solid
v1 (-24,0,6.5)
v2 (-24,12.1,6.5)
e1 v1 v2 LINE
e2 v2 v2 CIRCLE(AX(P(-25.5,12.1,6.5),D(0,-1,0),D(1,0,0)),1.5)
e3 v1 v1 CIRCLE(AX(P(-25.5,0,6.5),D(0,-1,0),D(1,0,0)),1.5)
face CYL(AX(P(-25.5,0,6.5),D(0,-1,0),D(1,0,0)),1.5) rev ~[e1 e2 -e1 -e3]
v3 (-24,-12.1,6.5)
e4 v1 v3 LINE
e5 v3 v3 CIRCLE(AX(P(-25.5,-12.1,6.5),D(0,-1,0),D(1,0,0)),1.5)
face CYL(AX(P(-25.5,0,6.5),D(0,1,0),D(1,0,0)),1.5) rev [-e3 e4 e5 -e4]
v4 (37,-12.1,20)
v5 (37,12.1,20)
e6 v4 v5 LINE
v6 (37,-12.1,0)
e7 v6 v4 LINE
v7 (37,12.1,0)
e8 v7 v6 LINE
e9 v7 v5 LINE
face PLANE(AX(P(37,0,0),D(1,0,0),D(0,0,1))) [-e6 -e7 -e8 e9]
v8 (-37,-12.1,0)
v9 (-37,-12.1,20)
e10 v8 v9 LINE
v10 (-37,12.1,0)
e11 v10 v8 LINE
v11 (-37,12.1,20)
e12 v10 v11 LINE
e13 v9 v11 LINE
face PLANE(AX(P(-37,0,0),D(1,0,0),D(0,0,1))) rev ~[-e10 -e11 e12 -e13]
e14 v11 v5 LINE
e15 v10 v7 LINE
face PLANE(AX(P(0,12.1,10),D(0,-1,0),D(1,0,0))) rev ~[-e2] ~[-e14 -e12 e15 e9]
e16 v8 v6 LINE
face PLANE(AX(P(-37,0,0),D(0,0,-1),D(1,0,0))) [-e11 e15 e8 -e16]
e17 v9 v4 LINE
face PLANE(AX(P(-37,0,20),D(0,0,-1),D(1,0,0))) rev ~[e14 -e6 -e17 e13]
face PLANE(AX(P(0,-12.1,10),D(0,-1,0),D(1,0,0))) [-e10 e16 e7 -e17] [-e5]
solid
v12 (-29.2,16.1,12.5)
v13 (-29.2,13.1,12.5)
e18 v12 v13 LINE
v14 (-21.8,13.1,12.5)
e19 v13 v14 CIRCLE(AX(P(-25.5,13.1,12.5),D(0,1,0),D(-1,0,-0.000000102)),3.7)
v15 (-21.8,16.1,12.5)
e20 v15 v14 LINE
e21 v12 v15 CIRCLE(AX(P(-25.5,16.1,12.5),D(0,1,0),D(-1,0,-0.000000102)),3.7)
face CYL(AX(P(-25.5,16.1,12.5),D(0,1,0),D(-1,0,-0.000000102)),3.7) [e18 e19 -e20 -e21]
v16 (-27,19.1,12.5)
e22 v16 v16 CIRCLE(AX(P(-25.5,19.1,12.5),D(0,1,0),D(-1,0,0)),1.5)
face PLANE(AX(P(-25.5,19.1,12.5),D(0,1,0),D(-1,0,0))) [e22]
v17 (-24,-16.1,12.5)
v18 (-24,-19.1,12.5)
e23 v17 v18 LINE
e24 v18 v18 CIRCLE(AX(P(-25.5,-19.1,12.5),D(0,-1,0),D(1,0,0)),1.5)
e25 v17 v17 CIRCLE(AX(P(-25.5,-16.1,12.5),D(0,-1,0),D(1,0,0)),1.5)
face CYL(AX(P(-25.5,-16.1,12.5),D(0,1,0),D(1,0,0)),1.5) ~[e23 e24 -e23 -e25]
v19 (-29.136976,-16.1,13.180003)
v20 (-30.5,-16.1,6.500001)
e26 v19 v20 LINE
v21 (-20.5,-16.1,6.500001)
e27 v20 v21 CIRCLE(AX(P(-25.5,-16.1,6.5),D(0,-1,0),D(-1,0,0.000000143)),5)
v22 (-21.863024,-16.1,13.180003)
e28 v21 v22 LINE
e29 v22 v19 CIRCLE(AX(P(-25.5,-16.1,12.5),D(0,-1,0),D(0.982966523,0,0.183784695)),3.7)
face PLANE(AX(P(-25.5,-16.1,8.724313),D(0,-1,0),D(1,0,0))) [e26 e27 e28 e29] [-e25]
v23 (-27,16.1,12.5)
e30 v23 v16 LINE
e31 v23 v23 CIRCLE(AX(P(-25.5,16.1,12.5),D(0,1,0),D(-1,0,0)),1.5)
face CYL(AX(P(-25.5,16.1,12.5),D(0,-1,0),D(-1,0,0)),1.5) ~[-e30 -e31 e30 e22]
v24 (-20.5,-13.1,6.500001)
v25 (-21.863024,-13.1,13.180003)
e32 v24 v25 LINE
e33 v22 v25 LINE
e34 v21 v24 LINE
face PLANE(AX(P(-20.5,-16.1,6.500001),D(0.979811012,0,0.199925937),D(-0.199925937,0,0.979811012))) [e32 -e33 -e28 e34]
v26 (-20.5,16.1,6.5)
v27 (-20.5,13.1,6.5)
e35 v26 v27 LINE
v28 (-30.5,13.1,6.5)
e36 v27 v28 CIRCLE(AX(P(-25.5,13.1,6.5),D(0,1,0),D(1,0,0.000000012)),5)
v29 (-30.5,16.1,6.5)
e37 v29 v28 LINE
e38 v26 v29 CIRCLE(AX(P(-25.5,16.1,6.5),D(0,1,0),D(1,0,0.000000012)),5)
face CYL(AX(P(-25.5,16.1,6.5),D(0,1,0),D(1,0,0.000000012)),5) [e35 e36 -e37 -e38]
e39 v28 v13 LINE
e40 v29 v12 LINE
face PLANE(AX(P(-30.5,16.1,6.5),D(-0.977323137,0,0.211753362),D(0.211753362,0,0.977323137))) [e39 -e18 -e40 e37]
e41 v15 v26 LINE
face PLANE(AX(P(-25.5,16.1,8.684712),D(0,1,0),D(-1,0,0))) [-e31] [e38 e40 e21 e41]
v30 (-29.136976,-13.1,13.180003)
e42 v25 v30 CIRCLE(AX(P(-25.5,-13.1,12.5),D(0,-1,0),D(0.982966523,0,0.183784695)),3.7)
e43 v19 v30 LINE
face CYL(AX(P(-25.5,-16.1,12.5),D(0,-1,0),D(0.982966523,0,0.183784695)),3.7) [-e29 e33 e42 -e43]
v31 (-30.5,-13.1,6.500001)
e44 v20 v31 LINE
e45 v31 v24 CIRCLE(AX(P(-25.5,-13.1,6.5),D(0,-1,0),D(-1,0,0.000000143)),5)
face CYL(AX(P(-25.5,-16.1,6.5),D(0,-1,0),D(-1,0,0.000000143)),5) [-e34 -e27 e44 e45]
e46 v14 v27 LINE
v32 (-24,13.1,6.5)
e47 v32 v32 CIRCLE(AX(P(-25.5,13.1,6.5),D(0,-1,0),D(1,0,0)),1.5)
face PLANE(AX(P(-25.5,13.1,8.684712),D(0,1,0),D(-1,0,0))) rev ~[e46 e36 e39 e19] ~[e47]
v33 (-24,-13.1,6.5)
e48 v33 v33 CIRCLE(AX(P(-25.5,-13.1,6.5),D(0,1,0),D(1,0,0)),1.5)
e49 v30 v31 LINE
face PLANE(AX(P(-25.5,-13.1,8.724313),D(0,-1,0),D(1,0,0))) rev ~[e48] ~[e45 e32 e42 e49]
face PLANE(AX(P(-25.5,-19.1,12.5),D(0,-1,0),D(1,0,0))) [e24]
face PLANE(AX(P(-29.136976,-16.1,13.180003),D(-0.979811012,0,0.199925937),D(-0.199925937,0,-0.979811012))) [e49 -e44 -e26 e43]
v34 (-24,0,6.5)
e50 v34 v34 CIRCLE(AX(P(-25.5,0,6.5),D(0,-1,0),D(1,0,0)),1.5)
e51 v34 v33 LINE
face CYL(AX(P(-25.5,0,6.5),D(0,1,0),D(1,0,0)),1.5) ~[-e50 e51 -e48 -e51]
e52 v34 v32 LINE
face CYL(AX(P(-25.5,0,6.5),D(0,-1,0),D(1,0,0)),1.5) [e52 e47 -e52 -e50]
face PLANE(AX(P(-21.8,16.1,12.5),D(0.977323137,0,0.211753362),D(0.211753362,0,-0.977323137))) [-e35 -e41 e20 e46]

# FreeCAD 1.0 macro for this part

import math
import FreeCAD as App
import Part
import Sketcher
from FreeCAD import Vector


def add_polygon(sketch, points):
    """Adds a closed chain of lines whose ends are joined by coincident constraints."""
    first, n = sketch.GeometryCount, len(points)
    for a, b in zip(points, points[1:] + points[:1]):
        sketch.addGeometry(Part.LineSegment(App.Vector(*a, 0), App.Vector(*b, 0)), False)
    for i in range(n):
        sketch.addConstraint(Sketcher.Constraint("Coincident", first + i, 2, first + (i + 1) % n, 1))

doc = App.newDocument("Part")
params = doc.addObject("Spreadsheet::Sheet", "Params")
for row, (alias, value) in enumerate([
    ("sketch1_diameter", "3 mm"),
    ("sketch1_width", "74 mm"),
    ("sketch1_height", "20 mm"),
    ("pad1_length", "12.1 mm"),
    ("pad1_length2", "12.1 mm"),
    ("sketch2_diameter", "3 mm"),
    ("pad2_length", "16.1 mm"),
    ("pad2_length2", "16.1 mm"),
    ("sketch3_radius", "5 mm"),
    ("sketch3_radius2", "3.7 mm"),
    ("pad3_length", "3 mm"),
    ("sketch4_radius", "5 mm"),
    ("sketch4_radius2", "3.7 mm"),
    ("pad4_length", "3 mm"),
    ("sketch5_diameter", "3 mm"),
    ("pad5_length", "3 mm"),
    ("sketch6_diameter", "3 mm"),
    ("pad6_length", "3 mm"),
], start=1):
    params.set(f"A{row}", alias)
    params.set(f"B{row}", "=" + value)
    params.setAlias(f"B{row}", alias)

body = doc.addObject("PartDesign::Body", "Body")

sketch1 = body.newObject("Sketcher::SketchObject", "Sketch")
sketch1.AttachmentSupport = (doc.getObject("XZ_Plane"), [""])
sketch1.MapMode = "FlatFace"
add_polygon(sketch1, [(-37, 20), (-37, 0), (37, 0), (37, 20)])
sketch1.addGeometry(Part.Circle(Vector(-25.5, 6.5, 0), Vector(0, 0, 1), 1.5), False)
sketch1.addConstraint([
    Sketcher.Constraint("Vertical", 0),
    Sketcher.Constraint("Horizontal", 1),
    Sketcher.Constraint("Vertical", 2),
    Sketcher.Constraint("Horizontal", 3),
    Sketcher.Constraint("Symmetric", 0, 2, 1, 2, -1, 1),
    Sketcher.Constraint("Diameter", 4, 3.0),
    Sketcher.Constraint("DistanceX", 1, 1, 1, 2, 74.0),
    Sketcher.Constraint("DistanceY", 0, 2, 0, 1, 20.0),
    Sketcher.Constraint("DistanceX", 4, 3, -1, 1, 25.5),
    Sketcher.Constraint("DistanceY", -1, 1, 4, 3, 6.5),
])
sketch1.setExpression("Constraints[9]", "Params.sketch1_diameter")
sketch1.setExpression("Constraints[10]", "Params.sketch1_width")
sketch1.setExpression("Constraints[11]", "Params.sketch1_height")
pad1 = body.newObject("PartDesign::Pad", "Pad")
pad1.Profile = sketch1
pad1.Type = "TwoLengths"
pad1.setExpression("Length", "Params.pad1_length")
pad1.setExpression("Length2", "Params.pad1_length2")
body2 = doc.addObject("PartDesign::Body", "Body001")

sketch2 = body2.newObject("Sketcher::SketchObject", "Sketch001")
sketch2.AttachmentSupport = (doc.getObject("XZ_Plane001"), [""])
sketch2.MapMode = "FlatFace"
sketch2.addGeometry(Part.Circle(Vector(-25.5, 6.5, 0), Vector(0, 0, 1), 1.5), False)
sketch2.addConstraint([
    Sketcher.Constraint("Diameter", 0, 3.0),
    Sketcher.Constraint("DistanceX", 0, 3, -1, 1, 25.5),
    Sketcher.Constraint("DistanceY", -1, 1, 0, 3, 6.5),
])
sketch2.setExpression("Constraints[0]", "Params.sketch2_diameter")
pad2 = body2.newObject("PartDesign::Pad", "Pad001")
pad2.Profile = sketch2
pad2.Type = "TwoLengths"
pad2.setExpression("Length", "Params.pad2_length")
pad2.setExpression("Length2", "Params.pad2_length2")
pad2.Reversed = True

sketch3 = body2.newObject("Sketcher::SketchObject", "Sketch002")
sketch3.AttachmentSupport = (doc.getObject("XZ_Plane001"), [""])
sketch3.MapMode = "FlatFace"
sketch3.AttachmentOffset = App.Placement(Vector(0, 0, 16.1), App.Rotation())
sketch3.addGeometry([
    Part.LineSegment(Vector(-29.136976, 13.180003, 0), Vector(-30.5, 6.500001, 0)),
    Part.ArcOfCircle(Part.Circle(Vector(-25.5, 6.5, 0), Vector(0, 0, 1), 5), math.radians(179.999992), math.radians(360.000008)),
    Part.LineSegment(Vector(-20.5, 6.500001, 0), Vector(-21.863024, 13.180003, 0)),
    Part.ArcOfCircle(Part.Circle(Vector(-25.5, 12.5, 0), Vector(0, 0, 1), 3.7), math.radians(10.590286), math.radians(169.409714)),
], False)
sketch3.addConstraint([
    Sketcher.Constraint("Coincident", 0, 2, 1, 1),
    Sketcher.Constraint("Coincident", 1, 2, 2, 1),
    Sketcher.Constraint("Coincident", 2, 2, 3, 1),
    Sketcher.Constraint("Coincident", 3, 2, 0, 1),
    Sketcher.Constraint("Horizontal", 1, 3, 0, 2),
    Sketcher.Constraint("Horizontal", 0, 2, 1, 2),
    Sketcher.Constraint("Horizontal", 2, 2, 3, 2),
    Sketcher.Constraint("Vertical", 1, 3, 3, 3),
    Sketcher.Constraint("Radius", 1, 5.0),
    Sketcher.Constraint("Radius", 3, 3.7),
    Sketcher.Constraint("DistanceY", 1, 3, 3, 3, 6.0),
    Sketcher.Constraint("DistanceX", 1, 3, -1, 1, 25.5),
    Sketcher.Constraint("DistanceY", -1, 1, 1, 3, 6.5),
    Sketcher.Constraint("Distance", 0, 6.817644),
])
sketch3.setExpression("Constraints[8]", "Params.sketch3_radius")
sketch3.setExpression("Constraints[9]", "Params.sketch3_radius2")
pad3 = body2.newObject("PartDesign::Pad", "Pad002")
pad3.Profile = sketch3
pad3.setExpression("Length", "Params.pad3_length")
pad3.Reversed = True

sketch4 = body2.newObject("Sketcher::SketchObject", "Sketch003")
sketch4.AttachmentSupport = (doc.getObject("XZ_Plane001"), [""])
sketch4.MapMode = "FlatFace"
sketch4.AttachmentOffset = App.Placement(Vector(0, 0, -16.1), App.Rotation())
sketch4.addGeometry([
    Part.LineSegment(Vector(-21.8, 12.5, 0), Vector(-20.5, 6.5, 0)),
    Part.ArcOfCircle(Part.Circle(Vector(-25.5, 6.5, 0), Vector(0, 0, 1), 5), math.radians(179.999999), math.radians(360.000001)),
    Part.LineSegment(Vector(-30.5, 6.5, 0), Vector(-29.2, 12.5, 0)),
    Part.ArcOfCircle(Part.Circle(Vector(-25.5, 12.5, 0), Vector(0, 0, 1), 3.7), math.radians(-0.000006), math.radians(180.000006)),
], False)
sketch4.addConstraint([
    Sketcher.Constraint("Coincident", 0, 2, 1, 2),
    Sketcher.Constraint("Coincident", 1, 1, 2, 1),
    Sketcher.Constraint("Coincident", 2, 2, 3, 2),
    Sketcher.Constraint("Coincident", 3, 1, 0, 1),
    Sketcher.Constraint("Horizontal", 1, 3, 0, 2),
    Sketcher.Constraint("Horizontal", 0, 2, 1, 1),
    Sketcher.Constraint("Horizontal", 3, 3, 2, 2),
    Sketcher.Constraint("Horizontal", 2, 2, 3, 1),
    Sketcher.Constraint("Vertical", 1, 3, 3, 3),
    Sketcher.Constraint("Radius", 1, 5.0),
    Sketcher.Constraint("Radius", 3, 3.7),
    Sketcher.Constraint("DistanceY", 1, 3, 3, 3, 6.0),
    Sketcher.Constraint("DistanceX", 1, 3, -1, 1, 25.5),
    Sketcher.Constraint("DistanceY", -1, 1, 1, 3, 6.5),
])
sketch4.setExpression("Constraints[9]", "Params.sketch4_radius")
sketch4.setExpression("Constraints[10]", "Params.sketch4_radius2")
pad4 = body2.newObject("PartDesign::Pad", "Pad003")
pad4.Profile = sketch4
pad4.setExpression("Length", "Params.pad4_length")

sketch5 = body2.newObject("Sketcher::SketchObject", "Sketch004")
sketch5.AttachmentSupport = (doc.getObject("XZ_Plane001"), [""])
sketch5.MapMode = "FlatFace"
sketch5.AttachmentOffset = App.Placement(Vector(0, 0, 16.1), App.Rotation())
sketch5.addGeometry(Part.Circle(Vector(-25.5, 12.5, 0), Vector(0, 0, 1), 1.5), False)
sketch5.addConstraint([
    Sketcher.Constraint("Diameter", 0, 3.0),
    Sketcher.Constraint("DistanceX", 0, 3, -1, 1, 25.5),
    Sketcher.Constraint("DistanceY", -1, 1, 0, 3, 12.5),
])
sketch5.setExpression("Constraints[0]", "Params.sketch5_diameter")
pad5 = body2.newObject("PartDesign::Pad", "Pad004")
pad5.Profile = sketch5
pad5.setExpression("Length", "Params.pad5_length")

sketch6 = body2.newObject("Sketcher::SketchObject", "Sketch005")
sketch6.AttachmentSupport = (doc.getObject("XZ_Plane001"), [""])
sketch6.MapMode = "FlatFace"
sketch6.AttachmentOffset = App.Placement(Vector(0, 0, -16.1), App.Rotation())
sketch6.addGeometry(Part.Circle(Vector(-25.5, 12.5, 0), Vector(0, 0, 1), 1.5), False)
sketch6.addConstraint([
    Sketcher.Constraint("Diameter", 0, 3.0),
    Sketcher.Constraint("DistanceX", 0, 3, -1, 1, 25.5),
    Sketcher.Constraint("DistanceY", -1, 1, 0, 3, 12.5),
])
sketch6.setExpression("Constraints[0]", "Params.sketch6_diameter")
pad6 = body2.newObject("PartDesign::Pad", "Pad005")
pad6.Profile = sketch6
pad6.setExpression("Length", "Params.pad6_length")
pad6.Reversed = True

doc.recompute()
